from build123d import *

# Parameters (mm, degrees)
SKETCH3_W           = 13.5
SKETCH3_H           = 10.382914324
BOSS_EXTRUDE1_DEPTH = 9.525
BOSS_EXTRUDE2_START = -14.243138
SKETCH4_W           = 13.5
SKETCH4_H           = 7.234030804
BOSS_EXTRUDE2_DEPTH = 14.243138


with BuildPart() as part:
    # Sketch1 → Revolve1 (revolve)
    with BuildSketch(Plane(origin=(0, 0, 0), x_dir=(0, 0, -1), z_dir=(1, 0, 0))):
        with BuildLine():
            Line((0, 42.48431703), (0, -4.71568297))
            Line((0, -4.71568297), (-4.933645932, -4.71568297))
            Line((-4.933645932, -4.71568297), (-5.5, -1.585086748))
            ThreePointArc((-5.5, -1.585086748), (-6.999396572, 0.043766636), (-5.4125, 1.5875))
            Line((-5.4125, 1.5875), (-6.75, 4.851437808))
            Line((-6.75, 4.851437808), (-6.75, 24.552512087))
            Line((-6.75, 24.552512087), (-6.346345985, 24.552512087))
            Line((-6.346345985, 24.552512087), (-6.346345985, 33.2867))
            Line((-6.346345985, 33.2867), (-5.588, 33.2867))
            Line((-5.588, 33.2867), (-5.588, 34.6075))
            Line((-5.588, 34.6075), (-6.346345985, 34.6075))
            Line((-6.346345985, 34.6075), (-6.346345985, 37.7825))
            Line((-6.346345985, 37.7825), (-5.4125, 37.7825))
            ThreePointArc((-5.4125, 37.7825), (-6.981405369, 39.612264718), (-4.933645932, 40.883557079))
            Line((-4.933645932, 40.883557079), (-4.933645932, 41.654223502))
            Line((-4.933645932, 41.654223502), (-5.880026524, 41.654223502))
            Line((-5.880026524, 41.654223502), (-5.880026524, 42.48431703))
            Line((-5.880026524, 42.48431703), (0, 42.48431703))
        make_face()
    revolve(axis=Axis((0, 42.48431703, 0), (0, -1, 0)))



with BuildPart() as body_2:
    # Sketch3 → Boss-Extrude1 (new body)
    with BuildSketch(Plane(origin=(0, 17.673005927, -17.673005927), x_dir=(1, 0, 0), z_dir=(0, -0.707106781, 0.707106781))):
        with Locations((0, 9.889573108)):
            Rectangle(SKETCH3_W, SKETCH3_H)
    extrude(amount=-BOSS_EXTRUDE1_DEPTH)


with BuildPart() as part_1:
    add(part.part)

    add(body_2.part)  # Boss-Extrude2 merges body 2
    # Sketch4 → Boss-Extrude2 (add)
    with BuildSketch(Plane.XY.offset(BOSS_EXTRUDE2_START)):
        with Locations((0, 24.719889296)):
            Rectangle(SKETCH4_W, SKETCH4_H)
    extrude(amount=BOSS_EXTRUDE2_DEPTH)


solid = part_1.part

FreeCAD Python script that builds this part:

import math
import FreeCAD as App
import Part
import Sketcher
Q = App.Units.Quantity


def add_polygon(sketch, points):
    """Adds a closed chain of lines whose ends are joined by coincident constraints."""
    first, n = sketch.GeometryCount, len(points)
    for a, b in zip(points, points[1:] + points[:1]):
        sketch.addGeometry(Part.LineSegment(App.Vector(*a, 0), App.Vector(*b, 0)), False)
    for i in range(n):
        sketch.addConstraint(Sketcher.Constraint("Coincident", first + i, 2, first + (i + 1) % n, 1))

doc = App.newDocument("Part")
params = doc.addObject("Spreadsheet::Sheet", "Params")
for row, (alias, value) in enumerate([
    ("sketch1_radius", "0.0625 in"),
    ("sketch1_width", "0.125 in"),
    ("sketch1_width2", "0.052 in"),
    ("revolution_angle", "360 deg"),
    ("pad1_length", "0.375 in"),
    ("pad2_length", "14.243138 mm"),
], start=1):
    params.set(f"A{row}", alias)
    params.set(f"B{row}", "=" + value)
    params.setAlias(f"B{row}", alias)

body = doc.addObject("PartDesign::Body", "Body")

# Sketch on YZ plane
sketch1 = doc.addObject("Sketcher::SketchObject", "Sketch")
body.addObject(sketch1)
sketch1.AttachmentSupport = (doc.YZ_Plane, [""])
sketch1.MapMode = "FlatFace"
sketch1.addGeometry([
    Part.LineSegment(App.Vector(-4.72, 0, 0), App.Vector(42.48, 0, 0)),  # 0
    Part.LineSegment(App.Vector(42.48, 0, 0), App.Vector(42.48, 5.88, 0)),  # 1
    Part.LineSegment(App.Vector(42.48, 5.88, 0), App.Vector(41.65, 5.88, 0)),  # 2
    Part.LineSegment(App.Vector(41.65, 5.88, 0), App.Vector(41.65, 4.93, 0)),  # 3
    Part.LineSegment(App.Vector(41.65, 4.93, 0), App.Vector(40.88, 4.93, 0)),  # 4
    Part.ArcOfCircle(Part.Circle(App.Vector(39.37, 5.41, 0), App.Vector(0, 0, 1), 1.59), math.radians(-18), math.radians(180)),  # 5
    Part.LineSegment(App.Vector(37.78, 5.41, 0), App.Vector(37.78, 6.35, 0)),  # 6
    Part.LineSegment(App.Vector(37.78, 6.35, 0), App.Vector(34.61, 6.35, 0)),  # 7
    Part.LineSegment(App.Vector(34.61, 6.35, 0), App.Vector(34.61, 5.59, 0)),  # 8
    Part.LineSegment(App.Vector(34.61, 5.59, 0), App.Vector(33.29, 5.59, 0)),  # 9
    Part.LineSegment(App.Vector(33.29, 5.59, 0), App.Vector(33.29, 6.35, 0)),  # 10
    Part.LineSegment(App.Vector(33.29, 6.35, 0), App.Vector(24.55, 6.35, 0)),  # 11
    Part.LineSegment(App.Vector(24.55, 6.35, 0), App.Vector(24.55, 6.75, 0)),  # 12
    Part.LineSegment(App.Vector(24.55, 6.75, 0), App.Vector(4.85, 6.75, 0)),  # 13
    Part.LineSegment(App.Vector(4.85, 6.75, 0), App.Vector(1.59, 5.41, 0)),  # 14
    Part.ArcOfCircle(Part.Circle(App.Vector(0, 5.41, 0), App.Vector(0, 0, 1), 1.59), math.radians(0), math.radians(177)),  # 15
    Part.LineSegment(App.Vector(-1.59, 5.5, 0), App.Vector(-4.72, 4.93, 0)),  # 16
    Part.LineSegment(App.Vector(-4.72, 4.93, 0), App.Vector(-4.72, 0, 0)),  # 17
], False)
sketch1.addConstraint([
    Sketcher.Constraint("Coincident", 0, 2, 1, 1),
    Sketcher.Constraint("Coincident", 1, 2, 2, 1),
    Sketcher.Constraint("Coincident", 2, 2, 3, 1),
    Sketcher.Constraint("Coincident", 3, 2, 4, 1),
    Sketcher.Constraint("Coincident", 4, 2, 5, 1),
    Sketcher.Constraint("Tangent", 5, 2, 6, 1),
    Sketcher.Constraint("Coincident", 6, 2, 7, 1),
    Sketcher.Constraint("Coincident", 7, 2, 8, 1),
    Sketcher.Constraint("Coincident", 8, 2, 9, 1),
    Sketcher.Constraint("Coincident", 9, 2, 10, 1),
    Sketcher.Constraint("Coincident", 10, 2, 11, 1),
    Sketcher.Constraint("Coincident", 11, 2, 12, 1),
    Sketcher.Constraint("Coincident", 12, 2, 13, 1),
    Sketcher.Constraint("Coincident", 13, 2, 14, 1),
    Sketcher.Constraint("Coincident", 14, 2, 15, 1),
    Sketcher.Constraint("Coincident", 15, 2, 16, 1),
    Sketcher.Constraint("Coincident", 16, 2, 17, 1),
    Sketcher.Constraint("Coincident", 17, 2, 0, 1),
    Sketcher.Constraint("Horizontal", 0),
    Sketcher.Constraint("Vertical", 1),
    Sketcher.Constraint("Horizontal", 2),
    Sketcher.Constraint("Vertical", 3),
    Sketcher.Constraint("Horizontal", 4),
    Sketcher.Constraint("Vertical", 6),
    Sketcher.Constraint("Horizontal", 7),
    Sketcher.Constraint("Vertical", 8),
    Sketcher.Constraint("Horizontal", 9),
    Sketcher.Constraint("Vertical", 10),
    Sketcher.Constraint("Horizontal", 11),
    Sketcher.Constraint("Vertical", 12),
    Sketcher.Constraint("Horizontal", 13),
    Sketcher.Constraint("Vertical", 17),
    Sketcher.Constraint("Equal", 5, 15),
    Sketcher.Constraint("PointOnObject", 15, 3, -2),
    Sketcher.Constraint("PointOnObject", 0, 2, -1),
    Sketcher.Constraint("Horizontal", 5, 3, 15, 3),
    Sketcher.Constraint("Horizontal", 7, 2, 10, 2),
    Sketcher.Constraint("Horizontal", 5, 2, 14, 2),
    Sketcher.Constraint("Horizontal", 4, 2, 16, 2),
    Sketcher.Constraint("Radius", 5, Q("0.0625 in")),
    Sketcher.Constraint("DistanceX", 7, 2, 7, 1, Q("0.125 in")),
    Sketcher.Constraint("DistanceX", 9, 2, 9, 1, Q("0.052 in")),
    Sketcher.Constraint("DistanceX", -1, 1, 5, 3, Q("1.55 in")),
    Sketcher.Constraint("DistanceY", -1, 1, 8, 2, Q("0.22 in")),
    Sketcher.Constraint("DistanceX", 0, 1, 0, 2, Q("47.2 mm")),
    Sketcher.Constraint("DistanceY", 3, 2, 3, 1, Q("0.946381 mm")),
    Sketcher.Constraint("DistanceY", -1, 1, 5, 3, Q("5.4125 mm")),
    Sketcher.Constraint("DistanceY", -1, 1, 12, 2, Q("6.75 mm")),
    Sketcher.Constraint("DistanceY", -1, 1, 15, 2, Q("5.5 mm")),
    Sketcher.Constraint("DistanceY", 4, 2, 6, 2, Q("1.4127 mm")),
    Sketcher.Constraint("DistanceX", 15, 2, 11, 2, Q("26.137599 mm")),
    Sketcher.Constraint("Distance", 14, Q("3.52735 mm")),
    Sketcher.Constraint("DistanceX", 2, 2, 2, 1, Q("0.830094 mm")),
    Sketcher.Constraint("DistanceX", 4, 2, 4, 1, Q("0.770666 mm")),
    Sketcher.Constraint("DistanceY", 1, 1, 1, 2, Q("5.880027 mm")),
])
sketch1.setExpression("Constraints[39]", "Params.sketch1_radius")
sketch1.setExpression("Constraints[40]", "Params.sketch1_width")
sketch1.setExpression("Constraints[41]", "Params.sketch1_width2")
revolution = doc.addObject("PartDesign::Revolution", "Revolution")
body.addObject(revolution)
revolution.Profile = sketch1
revolution.ReferenceAxis = (sketch1, ["H_Axis"])
revolution.setExpression("Angle", "Params.revolution_angle")
body2 = doc.addObject("PartDesign::Body", "Body001")

# Sketch on an angled plane
sketch2 = doc.addObject("Sketcher::SketchObject", "Sketch001")
body2.addObject(sketch2)
sketch2.Placement = App.Placement(App.Vector(0, 17.673006, -17.673006), App.Rotation(App.Vector(1, 0, 0), App.Vector(0, 0.707106781, 0.707106781), App.Vector(0, -0.707106781, 0.707106781), "ZXY"))
add_polygon(sketch2, [(-7, 15), (-7, 5), (7, 5), (7, 15)])  # lines 0-3
sketch2.addConstraint([
    Sketcher.Constraint("Vertical", 0),
    Sketcher.Constraint("Horizontal", 1),
    Sketcher.Constraint("Vertical", 2),
    Sketcher.Constraint("Horizontal", 3),
    Sketcher.Constraint("DistanceX", 1, 1, 1, 2, Q("13.5 mm")),
    Sketcher.Constraint("DistanceX", 0, 2, -1, 1, Q("6.75 mm")),
    Sketcher.Constraint("DistanceY", 0, 2, 0, 1, Q("10.382914 mm")),
    Sketcher.Constraint("DistanceY", -1, 1, 2, 2, Q("15.08103 mm")),
])
pad1 = doc.addObject("PartDesign::Pad", "Pad")
body2.addObject(pad1)
pad1.Profile = sketch2
pad1.setExpression("Length", "Params.pad1_length")
pad1.Reversed = True
body.AllowCompound = True
doc.recompute()

boolean = doc.addObject("PartDesign::Boolean", "Boolean")
body.addObject(boolean)
boolean.Type = "Fuse"
boolean.addObjects([body2])

# Sketch on XY plane
sketch3 = doc.addObject("Sketcher::SketchObject", "Sketch002")
body.addObject(sketch3)
sketch3.AttachmentSupport = (doc.XY_Plane, [""])
sketch3.MapMode = "FlatFace"
sketch3.AttachmentOffset = App.Placement(App.Vector(0, 0, -14.243138), App.Rotation())
add_polygon(sketch3, [(-7, 28), (-7, 21), (7, 21), (7, 28)])  # lines 0-3
sketch3.addConstraint([
    Sketcher.Constraint("Vertical", 0),
    Sketcher.Constraint("Horizontal", 1),
    Sketcher.Constraint("Vertical", 2),
    Sketcher.Constraint("Horizontal", 3),
    Sketcher.Constraint("DistanceX", 1, 1, 1, 2, Q("13.5 mm")),
    Sketcher.Constraint("DistanceY", 0, 2, 0, 1, Q("7.234031 mm")),
    Sketcher.Constraint("DistanceX", 0, 2, -1, 1, Q("6.75 mm")),
    Sketcher.Constraint("DistanceY", -1, 1, 0, 2, Q("21.102874 mm")),
])
pad2 = doc.addObject("PartDesign::Pad", "Pad001")
body.addObject(pad2)
pad2.Profile = sketch3
pad2.setExpression("Length", "Params.pad2_length")

doc.recompute()
